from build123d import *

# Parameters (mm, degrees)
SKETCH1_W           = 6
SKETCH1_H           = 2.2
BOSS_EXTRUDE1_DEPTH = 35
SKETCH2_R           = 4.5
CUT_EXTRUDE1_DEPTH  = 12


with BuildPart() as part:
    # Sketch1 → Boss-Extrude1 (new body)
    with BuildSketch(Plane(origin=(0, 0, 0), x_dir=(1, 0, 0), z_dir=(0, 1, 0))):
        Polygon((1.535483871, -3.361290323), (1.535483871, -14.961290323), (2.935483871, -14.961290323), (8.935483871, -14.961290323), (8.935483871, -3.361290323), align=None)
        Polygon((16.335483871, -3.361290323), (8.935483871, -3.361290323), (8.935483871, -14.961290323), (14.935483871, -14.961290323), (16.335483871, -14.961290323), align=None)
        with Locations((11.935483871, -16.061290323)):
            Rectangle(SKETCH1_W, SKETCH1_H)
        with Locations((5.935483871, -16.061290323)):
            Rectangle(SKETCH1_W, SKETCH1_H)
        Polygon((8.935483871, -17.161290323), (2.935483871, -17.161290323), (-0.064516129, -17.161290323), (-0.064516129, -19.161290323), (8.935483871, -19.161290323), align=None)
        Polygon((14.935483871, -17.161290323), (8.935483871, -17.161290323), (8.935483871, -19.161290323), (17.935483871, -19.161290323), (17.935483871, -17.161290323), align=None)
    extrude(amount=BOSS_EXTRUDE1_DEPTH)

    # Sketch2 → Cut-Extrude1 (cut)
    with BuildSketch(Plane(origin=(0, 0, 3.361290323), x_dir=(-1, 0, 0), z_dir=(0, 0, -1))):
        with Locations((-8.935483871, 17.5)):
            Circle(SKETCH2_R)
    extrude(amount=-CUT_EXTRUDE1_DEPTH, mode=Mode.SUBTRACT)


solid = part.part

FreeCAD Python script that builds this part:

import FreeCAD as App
import Part
import Sketcher

doc = App.newDocument("Part")
params = doc.addObject("Spreadsheet::Sheet", "Params")
for row, (alias, value) in enumerate([
    ("sketch1_width", "3 mm"),
    ("sketch1_width2", "18 mm"),
    ("sketch1_height", "2 mm"),
    ("sketch1_width3", "1.4 mm"),
    ("sketch1_height2", "11.6 mm"),
    ("pad1_length", "35 mm"),
    ("sketch2_diameter", "9 mm"),
    ("pocket1_length", "12 mm"),
], start=1):
    params.set(f"A{row}", alias)
    params.set(f"B{row}", "=" + value)
    params.setAlias(f"B{row}", alias)

body = doc.addObject("PartDesign::Body", "Body")

# Sketch on XZ plane
sketch1 = body.newObject("Sketcher::SketchObject", "Sketch")
sketch1.AttachmentSupport = (doc.getObject("XZ_Plane"), [""])
sketch1.MapMode = "FlatFace"
sketch1.addGeometry([
    Part.LineSegment(App.Vector(1.535484, 3.36129, 0), App.Vector(1.535484, 14.96129, 0)),  # 0
    Part.LineSegment(App.Vector(1.535484, 14.96129, 0), App.Vector(2.935484, 14.96129, 0)),  # 1
    Part.LineSegment(App.Vector(2.935484, 14.96129, 0), App.Vector(2.935484, 17.16129, 0)),  # 2
    Part.LineSegment(App.Vector(2.935484, 17.16129, 0), App.Vector(-0.064516, 17.16129, 0)),  # 3
    Part.LineSegment(App.Vector(-0.064516, 17.16129, 0), App.Vector(-0.064516, 19.16129, 0)),  # 4
    Part.LineSegment(App.Vector(-0.064516, 19.16129, 0), App.Vector(17.935484, 19.16129, 0)),  # 5
    Part.LineSegment(App.Vector(17.935484, 19.16129, 0), App.Vector(17.935484, 17.16129, 0)),  # 6
    Part.LineSegment(App.Vector(17.935484, 17.16129, 0), App.Vector(14.935484, 17.16129, 0)),  # 7
    Part.LineSegment(App.Vector(14.935484, 17.16129, 0), App.Vector(14.935484, 14.96129, 0)),  # 8
    Part.LineSegment(App.Vector(14.935484, 14.96129, 0), App.Vector(16.335484, 14.96129, 0)),  # 9
    Part.LineSegment(App.Vector(16.335484, 14.96129, 0), App.Vector(16.335484, 3.36129, 0)),  # 10
    Part.LineSegment(App.Vector(16.335484, 3.36129, 0), App.Vector(1.535484, 3.36129, 0)),  # 11
], False)
sketch1.addConstraint([
    Sketcher.Constraint("Coincident", 0, 2, 1, 1),
    Sketcher.Constraint("Coincident", 1, 2, 2, 1),
    Sketcher.Constraint("Coincident", 2, 2, 3, 1),
    Sketcher.Constraint("Coincident", 3, 2, 4, 1),
    Sketcher.Constraint("Coincident", 4, 2, 5, 1),
    Sketcher.Constraint("Coincident", 5, 2, 6, 1),
    Sketcher.Constraint("Coincident", 6, 2, 7, 1),
    Sketcher.Constraint("Coincident", 7, 2, 8, 1),
    Sketcher.Constraint("Coincident", 8, 2, 9, 1),
    Sketcher.Constraint("Coincident", 9, 2, 10, 1),
    Sketcher.Constraint("Coincident", 10, 2, 11, 1),
    Sketcher.Constraint("Coincident", 11, 2, 0, 1),
    Sketcher.Constraint("Vertical", 0),
    Sketcher.Constraint("Horizontal", 1),
    Sketcher.Constraint("Vertical", 2),
    Sketcher.Constraint("Horizontal", 3),
    Sketcher.Constraint("Vertical", 4),
    Sketcher.Constraint("Horizontal", 5),
    Sketcher.Constraint("Vertical", 6),
    Sketcher.Constraint("Horizontal", 7),
    Sketcher.Constraint("Vertical", 8),
    Sketcher.Constraint("Horizontal", 9),
    Sketcher.Constraint("Vertical", 10),
    Sketcher.Constraint("Horizontal", 11),
    Sketcher.Constraint("Horizontal", 3, 2, 6, 2),
    Sketcher.Constraint("Horizontal", 1, 2, 8, 2),
    Sketcher.Constraint("Equal", 3, 7),
    Sketcher.Constraint("Equal", 1, 9),
    Sketcher.Constraint("DistanceX", 3, 2, 3, 1, 3.0),
    Sketcher.Constraint("DistanceX", 5, 1, 5, 2, 18.0),
    Sketcher.Constraint("DistanceY", 4, 1, 4, 2, 2.0),
    Sketcher.Constraint("DistanceX", 1, 1, 1, 2, 1.4),
    Sketcher.Constraint("DistanceY", 0, 1, 0, 2, 11.6),
    Sketcher.Constraint("DistanceY", 2, 1, 2, 2, 2.2),
    Sketcher.Constraint("DistanceY", -1, 1, 0, 2, 14.96129),
    Sketcher.Constraint("DistanceX", -1, 1, 0, 2, 1.535484),
])
sketch1.setExpression("Constraints[28]", "Params.sketch1_width")
sketch1.setExpression("Constraints[29]", "Params.sketch1_width2")
sketch1.setExpression("Constraints[30]", "Params.sketch1_height")
sketch1.setExpression("Constraints[31]", "Params.sketch1_width3")
sketch1.setExpression("Constraints[32]", "Params.sketch1_height2")
pad1 = body.newObject("PartDesign::Pad", "Pad")
pad1.Profile = sketch1
pad1.setExpression("Length", "Params.pad1_length")
pad1.Reversed = True

# Sketch on XY plane
sketch2 = body.newObject("Sketcher::SketchObject", "Sketch001")
sketch2.AttachmentSupport = (doc.getObject("XY_Plane"), [""])
sketch2.MapMode = "FlatFace"
sketch2.AttachmentOffset = App.Placement(App.Vector(0, 0, 3.36129), App.Rotation())
sketch2.addGeometry(Part.Circle(App.Vector(8.935484, 17.5, 0), App.Vector(0, 0, 1), 4.5), False)
sketch2.addConstraint([
    Sketcher.Constraint("Diameter", 0, 9.0),
    Sketcher.Constraint("DistanceY", -1, 1, 0, 3, 17.5),
    Sketcher.Constraint("DistanceX", -1, 1, 0, 3, 8.935484),
])
sketch2.setExpression("Constraints[0]", "Params.sketch2_diameter")
pocket1 = body.newObject("PartDesign::Pocket", "Pocket")
pocket1.Profile = sketch2
pocket1.setExpression("Length", "Params.pocket1_length")
pocket1.Reversed = True

doc.recompute()
